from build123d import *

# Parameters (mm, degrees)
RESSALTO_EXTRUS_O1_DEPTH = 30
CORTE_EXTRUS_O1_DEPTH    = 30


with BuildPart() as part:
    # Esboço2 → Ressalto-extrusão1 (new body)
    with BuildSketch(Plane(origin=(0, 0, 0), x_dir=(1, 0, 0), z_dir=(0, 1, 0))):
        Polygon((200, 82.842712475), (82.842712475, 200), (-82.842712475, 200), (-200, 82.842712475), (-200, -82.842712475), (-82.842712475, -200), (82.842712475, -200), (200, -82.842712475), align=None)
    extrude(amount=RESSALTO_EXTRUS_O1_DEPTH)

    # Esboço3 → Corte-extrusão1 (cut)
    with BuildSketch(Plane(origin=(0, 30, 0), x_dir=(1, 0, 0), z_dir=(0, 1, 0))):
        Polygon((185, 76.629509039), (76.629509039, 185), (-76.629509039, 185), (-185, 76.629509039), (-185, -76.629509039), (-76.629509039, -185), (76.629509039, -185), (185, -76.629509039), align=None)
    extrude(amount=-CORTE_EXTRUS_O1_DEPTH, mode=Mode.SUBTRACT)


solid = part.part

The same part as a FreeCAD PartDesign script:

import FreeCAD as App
import Part
import Sketcher

V = App.Vector


def add_polygon(sketch, points):
    """Adds a closed chain of lines whose ends are joined by coincident constraints."""
    first, n = sketch.GeometryCount, len(points)
    for a, b in zip(points, points[1:] + points[:1]):
        sketch.addGeometry(Part.LineSegment(App.Vector(*a, 0), App.Vector(*b, 0)), False)
    for i in range(n):
        sketch.addConstraint(Sketcher.Constraint("Coincident", first + i, 2, first + (i + 1) % n, 1))

doc = App.newDocument("Part")
params = doc.addObject("Spreadsheet::Sheet", "Params")
for row, (alias, value) in enumerate([
    ("pad1_length", "30 mm"),
    ("pocket1_length", "30 mm"),
], start=1):
    params.set(f"A{row}", alias)
    params.set(f"B{row}", "=" + value)
    params.setAlias(f"B{row}", alias)

body = doc.addObject("PartDesign::Body", "Body")

# Sketch on XZ plane
sketch1 = body.newObject("Sketcher::SketchObject", "Sketch")
sketch1.AttachmentSupport = (doc.getObject("XZ_Plane"), [""])
sketch1.MapMode = "FlatFace"
add_polygon(sketch1, [(200, -83), (83, -200), (-83, -200), (-200, -83), (-200, 83), (-83, 200), (83, 200), (200, 83)])  # lines 0-7
sketch1.addConstraint([
    Sketcher.Constraint("Horizontal", 1),
    Sketcher.Constraint("Vertical", 3),
    Sketcher.Constraint("Horizontal", 5),
    Sketcher.Constraint("Vertical", 7),
    Sketcher.Constraint("Symmetric", 0, 2, 4, 2, -1, 1),
    Sketcher.Constraint("Symmetric", 2, 2, 6, 2, -1, 1),
    Sketcher.Constraint("Perpendicular", 0, 2),
    Sketcher.Constraint("Perpendicular", 2, 4),
    Sketcher.Constraint("Perpendicular", 4, 6),
    Sketcher.Constraint("Horizontal", 3, 2, 6, 2),
    Sketcher.Constraint("Vertical", 1, 2, 4, 2),
    Sketcher.Constraint("Equal", 5, 3),
    Sketcher.Constraint("DistanceY", 0, 2, -1, 1, 200.0),
    Sketcher.Constraint("DistanceX", 1, 2, 1, 1, 165.685425),
])
pad1 = body.newObject("PartDesign::Pad", "Pad")
pad1.Profile = sketch1
pad1.setExpression("Length", "Params.pad1_length")
pad1.Reversed = True

# Sketch on XZ plane
sketch2 = body.newObject("Sketcher::SketchObject", "Sketch001")
sketch2.AttachmentSupport = (doc.getObject("XZ_Plane"), [""])
sketch2.MapMode = "FlatFace"
sketch2.AttachmentOffset = App.Placement(V(0, 0, -30), App.Rotation())
add_polygon(sketch2, [(185, -77), (77, -185), (-77, -185), (-185, -77), (-185, 77), (-77, 185), (77, 185), (185, 77)])  # lines 0-7
sketch2.addConstraint([
    Sketcher.Constraint("Horizontal", 1),
    Sketcher.Constraint("Vertical", 3),
    Sketcher.Constraint("Horizontal", 5),
    Sketcher.Constraint("Vertical", 7),
    Sketcher.Constraint("Symmetric", 0, 2, 4, 2, -1, 1),
    Sketcher.Constraint("Symmetric", 2, 2, 6, 2, -1, 1),
    Sketcher.Constraint("Perpendicular", 0, 2),
    Sketcher.Constraint("Perpendicular", 2, 4),
    Sketcher.Constraint("Perpendicular", 4, 6),
    Sketcher.Constraint("Horizontal", 3, 2, 6, 2),
    Sketcher.Constraint("Vertical", 1, 2, 4, 2),
    Sketcher.Constraint("Equal", 5, 3),
    Sketcher.Constraint("DistanceY", 0, 2, -1, 1, 185.0),
    Sketcher.Constraint("DistanceX", 1, 2, 1, 1, 153.259018),
])
pocket1 = body.newObject("PartDesign::Pocket", "Pocket")
pocket1.Profile = sketch2
pocket1.setExpression("Length", "Params.pocket1_length")
pocket1.Reversed = True

doc.recompute()
